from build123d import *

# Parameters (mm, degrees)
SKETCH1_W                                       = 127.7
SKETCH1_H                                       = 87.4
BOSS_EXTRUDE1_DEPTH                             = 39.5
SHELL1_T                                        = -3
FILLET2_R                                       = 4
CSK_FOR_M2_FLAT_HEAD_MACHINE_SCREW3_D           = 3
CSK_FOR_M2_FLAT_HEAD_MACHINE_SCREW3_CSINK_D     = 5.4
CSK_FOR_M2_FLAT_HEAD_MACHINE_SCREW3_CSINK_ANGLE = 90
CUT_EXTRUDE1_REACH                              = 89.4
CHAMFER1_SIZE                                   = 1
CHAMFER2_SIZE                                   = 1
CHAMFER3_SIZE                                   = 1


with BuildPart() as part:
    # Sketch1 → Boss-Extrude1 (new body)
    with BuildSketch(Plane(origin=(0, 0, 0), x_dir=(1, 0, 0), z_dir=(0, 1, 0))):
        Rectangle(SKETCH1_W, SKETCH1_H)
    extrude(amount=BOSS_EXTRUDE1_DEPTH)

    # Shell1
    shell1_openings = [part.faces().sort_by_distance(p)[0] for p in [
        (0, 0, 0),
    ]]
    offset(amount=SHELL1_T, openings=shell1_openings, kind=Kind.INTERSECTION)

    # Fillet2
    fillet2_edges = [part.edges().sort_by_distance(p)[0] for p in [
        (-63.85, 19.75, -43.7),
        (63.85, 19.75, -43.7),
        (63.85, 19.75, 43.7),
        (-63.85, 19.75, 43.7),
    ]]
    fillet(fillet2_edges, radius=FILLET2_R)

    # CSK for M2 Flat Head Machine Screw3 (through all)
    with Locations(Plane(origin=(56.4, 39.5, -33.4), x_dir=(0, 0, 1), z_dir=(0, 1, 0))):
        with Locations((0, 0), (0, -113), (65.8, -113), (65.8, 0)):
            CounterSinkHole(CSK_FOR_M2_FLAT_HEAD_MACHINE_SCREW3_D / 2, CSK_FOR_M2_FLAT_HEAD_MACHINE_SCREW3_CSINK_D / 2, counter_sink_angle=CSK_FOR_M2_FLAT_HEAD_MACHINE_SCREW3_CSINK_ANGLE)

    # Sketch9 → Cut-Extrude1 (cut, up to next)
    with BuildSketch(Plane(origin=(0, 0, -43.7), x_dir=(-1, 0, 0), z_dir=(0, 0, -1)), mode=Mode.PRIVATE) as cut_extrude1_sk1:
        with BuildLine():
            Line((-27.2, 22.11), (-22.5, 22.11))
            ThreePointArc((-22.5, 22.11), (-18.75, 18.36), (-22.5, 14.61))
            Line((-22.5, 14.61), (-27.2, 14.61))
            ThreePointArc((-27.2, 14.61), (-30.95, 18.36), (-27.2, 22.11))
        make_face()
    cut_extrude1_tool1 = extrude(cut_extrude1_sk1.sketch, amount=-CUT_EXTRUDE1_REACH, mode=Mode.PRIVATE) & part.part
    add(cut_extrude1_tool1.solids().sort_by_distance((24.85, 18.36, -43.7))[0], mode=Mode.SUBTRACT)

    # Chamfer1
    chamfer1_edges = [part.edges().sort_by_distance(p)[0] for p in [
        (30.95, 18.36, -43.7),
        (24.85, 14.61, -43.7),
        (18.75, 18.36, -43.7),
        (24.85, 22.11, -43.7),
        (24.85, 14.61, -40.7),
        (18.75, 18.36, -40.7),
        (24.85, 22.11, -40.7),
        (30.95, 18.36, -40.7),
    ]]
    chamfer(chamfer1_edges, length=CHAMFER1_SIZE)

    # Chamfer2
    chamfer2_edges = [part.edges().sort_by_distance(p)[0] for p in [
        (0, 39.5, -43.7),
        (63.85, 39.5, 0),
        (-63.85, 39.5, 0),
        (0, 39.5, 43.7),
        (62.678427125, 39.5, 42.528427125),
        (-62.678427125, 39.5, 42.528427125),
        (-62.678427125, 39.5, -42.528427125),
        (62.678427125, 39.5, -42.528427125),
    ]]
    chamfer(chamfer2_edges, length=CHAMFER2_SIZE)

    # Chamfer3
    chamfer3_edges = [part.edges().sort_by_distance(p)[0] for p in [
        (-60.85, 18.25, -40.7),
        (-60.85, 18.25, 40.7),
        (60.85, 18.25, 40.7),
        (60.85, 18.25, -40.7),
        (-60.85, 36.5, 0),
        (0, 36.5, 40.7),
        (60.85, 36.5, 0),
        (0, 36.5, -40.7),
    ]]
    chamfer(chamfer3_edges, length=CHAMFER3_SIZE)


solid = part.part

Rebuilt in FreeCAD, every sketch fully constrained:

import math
import FreeCAD as App
import Part
import Sketcher

V = App.Vector
Q = App.Units.Quantity


def edges_at(feature, points):
    """Names of the edges that pass closest to the given points."""
    edges = feature.Shape.Edges
    near = lambda p: min(range(len(edges)), key=lambda i: edges[i].distToShape(Part.Vertex(*p))[0])
    return sorted({f"Edge{near(p) + 1}" for p in points})


def faces_at(feature, points):
    """Names of the faces that lie closest to the given points."""
    faces = feature.Shape.Faces
    near = lambda p: min(range(len(faces)), key=lambda i: faces[i].distToShape(Part.Vertex(*p))[0])
    return sorted({f"Face{near(p) + 1}" for p in points})

doc = App.newDocument("Part")
params = doc.addObject("Spreadsheet::Sheet", "Params")
for row, (alias, value) in enumerate([
    ("sketch1_width", "127.7 mm"),
    ("sketch1_height", "87.4 mm"),
    ("pad1_length", "39.5 mm"),
    ("thickness_wall", "3 mm"),
    ("fillet_radius", "4 mm"),
    ("sketch2_diameter", "3 mm"),
    ("hole_diameter", "3 mm"),
    ("hole_csink_diameter", "5.4 mm"),
    ("sketch3_radius", "3.75 mm"),
    ("sketch3_width", "4.7 mm"),
    ("chamfer_size", "1 mm"),
    ("chamfer2_size", "1 mm"),
    ("chamfer3_size", "1 mm"),
], start=1):
    params.set(f"A{row}", alias)
    params.set(f"B{row}", "=" + value)
    params.setAlias(f"B{row}", alias)

body = doc.addObject("PartDesign::Body", "Body")

sketch1 = doc.addObject("Sketcher::SketchObject", "Sketch")
body.addObject(sketch1)
sketch1.AttachmentSupport = (doc.XZ_Plane, [""])
sketch1.MapMode = "FlatFace"
sketch1.addGeometry(Part.LineSegment(V(-64, -44, 0), V(-64, 44, 0)), False)
sketch1.addGeometry(Part.LineSegment(V(-64, 44, 0), V(64, 44, 0)), False)
sketch1.addGeometry(Part.LineSegment(V(64, 44, 0), V(64, -44, 0)), False)
sketch1.addGeometry(Part.LineSegment(V(64, -44, 0), V(-64, -44, 0)), False)
sketch1.addConstraint(Sketcher.Constraint("Coincident", 0, 2, 1, 1))
sketch1.addConstraint(Sketcher.Constraint("Coincident", 1, 2, 2, 1))
sketch1.addConstraint(Sketcher.Constraint("Coincident", 2, 2, 3, 1))
sketch1.addConstraint(Sketcher.Constraint("Coincident", 3, 2, 0, 1))
sketch1.addConstraint(Sketcher.Constraint("Vertical", 0))
sketch1.addConstraint(Sketcher.Constraint("Horizontal", 1))
sketch1.addConstraint(Sketcher.Constraint("Vertical", 2))
sketch1.addConstraint(Sketcher.Constraint("Horizontal", 3))
sketch1.addConstraint(Sketcher.Constraint("Symmetric", 0, 2, 2, 2, -1, 1))
sketch1.addConstraint(Sketcher.Constraint("DistanceX", 1, 1, 1, 2, Q("127.7 mm")))
sketch1.addConstraint(Sketcher.Constraint("DistanceY", 0, 1, 0, 2, Q("87.4 mm")))
sketch1.setExpression("Constraints[9]", "Params.sketch1_width")
sketch1.setExpression("Constraints[10]", "Params.sketch1_height")
pad1 = doc.addObject("PartDesign::Pad", "Pad")
body.addObject(pad1)
pad1.Profile = sketch1
pad1.setExpression("Length", "Params.pad1_length")
pad1.Reversed = True
doc.recompute()

thickness = doc.addObject("PartDesign::Thickness", "Thickness")
body.addObject(thickness)
thickness.Base = (pad1, faces_at(pad1, [(0, 0, 0)]))
thickness.setExpression("Value", "Params.thickness_wall")
thickness.Reversed = True
thickness.Join = "Intersection"
doc.recompute()

fillet = doc.addObject("PartDesign::Fillet", "Fillet")
body.addObject(fillet)
fillet.Base = (thickness, edges_at(thickness, [
    (-63.85, 19.75, -43.7),
    (63.85, 19.75, -43.7),
    (63.85, 19.75, 43.7),
    (-63.85, 19.75, 43.7),
]))
fillet.setExpression("Radius", "Params.fillet_radius")

sketch2 = doc.addObject("Sketcher::SketchObject", "Sketch001")
body.addObject(sketch2)
sketch2.AttachmentSupport = (doc.XZ_Plane, [""])
sketch2.MapMode = "FlatFace"
sketch2.AttachmentOffset = App.Placement(V(0, 0, -39.5), App.Rotation())
sketch2.addGeometry(Part.Circle(V(56.4, -33.4, 0), V(0, 0, 1), 1.5), False)
sketch2.addGeometry(Part.Circle(V(-56.6, -33.4, 0), V(0, 0, 1), 1.5), False)
sketch2.addGeometry(Part.Circle(V(-56.6, 32.4, 0), V(0, 0, 1), 1.5), False)
sketch2.addGeometry(Part.Circle(V(56.4, 32.4, 0), V(0, 0, 1), 1.5), False)
sketch2.addConstraint(Sketcher.Constraint("Equal", 0, 1))
sketch2.addConstraint(Sketcher.Constraint("Equal", 1, 2))
sketch2.addConstraint(Sketcher.Constraint("Equal", 2, 3))
sketch2.addConstraint(Sketcher.Constraint("Horizontal", 0, 3, 1, 3))
sketch2.addConstraint(Sketcher.Constraint("Horizontal", 2, 3, 3, 3))
sketch2.addConstraint(Sketcher.Constraint("Vertical", 1, 3, 2, 3))
sketch2.addConstraint(Sketcher.Constraint("Vertical", 0, 3, 3, 3))
sketch2.addConstraint(Sketcher.Constraint("Diameter", 0, Q("3 mm")))
sketch2.addConstraint(Sketcher.Constraint("DistanceX", 1, 3, 0, 3, Q("113 mm")))
sketch2.addConstraint(Sketcher.Constraint("DistanceX", -1, 1, 0, 3, Q("56.4 mm")))
sketch2.addConstraint(Sketcher.Constraint("DistanceY", 0, 3, -1, 1, Q("33.4 mm")))
sketch2.addConstraint(Sketcher.Constraint("DistanceY", -1, 1, 2, 3, Q("32.4 mm")))
sketch2.setExpression("Constraints[7]", "Params.sketch2_diameter")
doc.recompute()
hole = doc.addObject("PartDesign::Hole", "Hole")
body.addObject(hole)
hole.Profile = sketch2
hole.ThreadType = "None"
hole.setExpression("Diameter", "Params.hole_diameter")
hole.DepthType = "ThroughAll"
hole.HoleCutType = "Countersink"
hole.setExpression("HoleCutDiameter", "Params.hole_csink_diameter")
hole.HoleCutCountersinkAngle = 90
hole.Reversed = True

sketch3 = doc.addObject("Sketcher::SketchObject", "Sketch002")
body.addObject(sketch3)
sketch3.AttachmentSupport = (doc.XY_Plane, [""])
sketch3.MapMode = "FlatFace"
sketch3.AttachmentOffset = App.Placement(V(0, 0, -43.7), App.Rotation())
sketch3.addGeometry(Part.LineSegment(V(22.5, 22.1, 0), V(27.2, 22.1, 0)), False)
sketch3.addGeometry(Part.ArcOfCircle(Part.Circle(V(27.2, 18.4, 0), V(0, 0, 1), 3.8), math.radians(-90), math.radians(90)), False)
sketch3.addGeometry(Part.LineSegment(V(27.2, 14.6, 0), V(22.5, 14.6, 0)), False)
sketch3.addGeometry(Part.ArcOfCircle(Part.Circle(V(22.5, 18.4, 0), V(0, 0, 1), 3.8), math.radians(90), math.radians(270)), False)
sketch3.addConstraint(Sketcher.Constraint("Tangent", 0, 2, 1, 2))
sketch3.addConstraint(Sketcher.Constraint("Tangent", 1, 1, 2, 1))
sketch3.addConstraint(Sketcher.Constraint("Tangent", 2, 2, 3, 2))
sketch3.addConstraint(Sketcher.Constraint("Tangent", 3, 1, 0, 1))
sketch3.addConstraint(Sketcher.Constraint("Horizontal", 0))
sketch3.addConstraint(Sketcher.Constraint("Horizontal", 2))
sketch3.addConstraint(Sketcher.Constraint("Radius", 1, Q("3.75 mm")))
sketch3.addConstraint(Sketcher.Constraint("DistanceX", 0, 1, 0, 2, Q("4.7 mm")))
sketch3.addConstraint(Sketcher.Constraint("DistanceX", -1, 1, 1, 3, Q("27.2 mm")))
sketch3.addConstraint(Sketcher.Constraint("DistanceY", -1, 1, 1, 3, Q("18.36 mm")))
sketch3.setExpression("Constraints[6]", "Params.sketch3_radius")
sketch3.setExpression("Constraints[7]", "Params.sketch3_width")
pocket1 = doc.addObject("PartDesign::Pocket", "Pocket")
body.addObject(pocket1)
pocket1.Profile = sketch3
pocket1.Type = "UpToFirst"
pocket1.Reversed = True
doc.recompute()

chamfer = doc.addObject("PartDesign::Chamfer", "Chamfer")
body.addObject(chamfer)
chamfer.Base = (pocket1, edges_at(pocket1, [
    (30.95, 18.36, -43.7),
    (24.85, 14.61, -43.7),
    (18.75, 18.36, -43.7),
    (24.85, 22.11, -43.7),
    (24.85, 14.61, -40.7),
    (18.75, 18.36, -40.7),
    (24.85, 22.11, -40.7),
    (30.95, 18.36, -40.7),
]))
chamfer.setExpression("Size", "Params.chamfer_size")
doc.recompute()

chamfer2 = doc.addObject("PartDesign::Chamfer", "Chamfer001")
body.addObject(chamfer2)
chamfer2.Base = (chamfer, edges_at(chamfer, [
    (0, 39.5, -43.7),
    (63.85, 39.5, 0),
    (-63.85, 39.5, 0),
    (0, 39.5, 43.7),
    (62.678, 39.5, 42.528),
    (-62.678, 39.5, 42.528),
    (-62.678, 39.5, -42.528),
    (62.678, 39.5, -42.528),
]))
chamfer2.setExpression("Size", "Params.chamfer2_size")
doc.recompute()

chamfer3 = doc.addObject("PartDesign::Chamfer", "Chamfer002")
body.addObject(chamfer3)
chamfer3.Base = (chamfer2, edges_at(chamfer2, [
    (-60.85, 18.25, -40.7),
    (-60.85, 18.25, 40.7),
    (60.85, 18.25, 40.7),
    (60.85, 18.25, -40.7),
    (-60.85, 36.5, 0),
    (0, 36.5, 40.7),
    (60.85, 36.5, 0),
    (0, 36.5, -40.7),
]))
chamfer3.setExpression("Size", "Params.chamfer3_size")

doc.recompute()
